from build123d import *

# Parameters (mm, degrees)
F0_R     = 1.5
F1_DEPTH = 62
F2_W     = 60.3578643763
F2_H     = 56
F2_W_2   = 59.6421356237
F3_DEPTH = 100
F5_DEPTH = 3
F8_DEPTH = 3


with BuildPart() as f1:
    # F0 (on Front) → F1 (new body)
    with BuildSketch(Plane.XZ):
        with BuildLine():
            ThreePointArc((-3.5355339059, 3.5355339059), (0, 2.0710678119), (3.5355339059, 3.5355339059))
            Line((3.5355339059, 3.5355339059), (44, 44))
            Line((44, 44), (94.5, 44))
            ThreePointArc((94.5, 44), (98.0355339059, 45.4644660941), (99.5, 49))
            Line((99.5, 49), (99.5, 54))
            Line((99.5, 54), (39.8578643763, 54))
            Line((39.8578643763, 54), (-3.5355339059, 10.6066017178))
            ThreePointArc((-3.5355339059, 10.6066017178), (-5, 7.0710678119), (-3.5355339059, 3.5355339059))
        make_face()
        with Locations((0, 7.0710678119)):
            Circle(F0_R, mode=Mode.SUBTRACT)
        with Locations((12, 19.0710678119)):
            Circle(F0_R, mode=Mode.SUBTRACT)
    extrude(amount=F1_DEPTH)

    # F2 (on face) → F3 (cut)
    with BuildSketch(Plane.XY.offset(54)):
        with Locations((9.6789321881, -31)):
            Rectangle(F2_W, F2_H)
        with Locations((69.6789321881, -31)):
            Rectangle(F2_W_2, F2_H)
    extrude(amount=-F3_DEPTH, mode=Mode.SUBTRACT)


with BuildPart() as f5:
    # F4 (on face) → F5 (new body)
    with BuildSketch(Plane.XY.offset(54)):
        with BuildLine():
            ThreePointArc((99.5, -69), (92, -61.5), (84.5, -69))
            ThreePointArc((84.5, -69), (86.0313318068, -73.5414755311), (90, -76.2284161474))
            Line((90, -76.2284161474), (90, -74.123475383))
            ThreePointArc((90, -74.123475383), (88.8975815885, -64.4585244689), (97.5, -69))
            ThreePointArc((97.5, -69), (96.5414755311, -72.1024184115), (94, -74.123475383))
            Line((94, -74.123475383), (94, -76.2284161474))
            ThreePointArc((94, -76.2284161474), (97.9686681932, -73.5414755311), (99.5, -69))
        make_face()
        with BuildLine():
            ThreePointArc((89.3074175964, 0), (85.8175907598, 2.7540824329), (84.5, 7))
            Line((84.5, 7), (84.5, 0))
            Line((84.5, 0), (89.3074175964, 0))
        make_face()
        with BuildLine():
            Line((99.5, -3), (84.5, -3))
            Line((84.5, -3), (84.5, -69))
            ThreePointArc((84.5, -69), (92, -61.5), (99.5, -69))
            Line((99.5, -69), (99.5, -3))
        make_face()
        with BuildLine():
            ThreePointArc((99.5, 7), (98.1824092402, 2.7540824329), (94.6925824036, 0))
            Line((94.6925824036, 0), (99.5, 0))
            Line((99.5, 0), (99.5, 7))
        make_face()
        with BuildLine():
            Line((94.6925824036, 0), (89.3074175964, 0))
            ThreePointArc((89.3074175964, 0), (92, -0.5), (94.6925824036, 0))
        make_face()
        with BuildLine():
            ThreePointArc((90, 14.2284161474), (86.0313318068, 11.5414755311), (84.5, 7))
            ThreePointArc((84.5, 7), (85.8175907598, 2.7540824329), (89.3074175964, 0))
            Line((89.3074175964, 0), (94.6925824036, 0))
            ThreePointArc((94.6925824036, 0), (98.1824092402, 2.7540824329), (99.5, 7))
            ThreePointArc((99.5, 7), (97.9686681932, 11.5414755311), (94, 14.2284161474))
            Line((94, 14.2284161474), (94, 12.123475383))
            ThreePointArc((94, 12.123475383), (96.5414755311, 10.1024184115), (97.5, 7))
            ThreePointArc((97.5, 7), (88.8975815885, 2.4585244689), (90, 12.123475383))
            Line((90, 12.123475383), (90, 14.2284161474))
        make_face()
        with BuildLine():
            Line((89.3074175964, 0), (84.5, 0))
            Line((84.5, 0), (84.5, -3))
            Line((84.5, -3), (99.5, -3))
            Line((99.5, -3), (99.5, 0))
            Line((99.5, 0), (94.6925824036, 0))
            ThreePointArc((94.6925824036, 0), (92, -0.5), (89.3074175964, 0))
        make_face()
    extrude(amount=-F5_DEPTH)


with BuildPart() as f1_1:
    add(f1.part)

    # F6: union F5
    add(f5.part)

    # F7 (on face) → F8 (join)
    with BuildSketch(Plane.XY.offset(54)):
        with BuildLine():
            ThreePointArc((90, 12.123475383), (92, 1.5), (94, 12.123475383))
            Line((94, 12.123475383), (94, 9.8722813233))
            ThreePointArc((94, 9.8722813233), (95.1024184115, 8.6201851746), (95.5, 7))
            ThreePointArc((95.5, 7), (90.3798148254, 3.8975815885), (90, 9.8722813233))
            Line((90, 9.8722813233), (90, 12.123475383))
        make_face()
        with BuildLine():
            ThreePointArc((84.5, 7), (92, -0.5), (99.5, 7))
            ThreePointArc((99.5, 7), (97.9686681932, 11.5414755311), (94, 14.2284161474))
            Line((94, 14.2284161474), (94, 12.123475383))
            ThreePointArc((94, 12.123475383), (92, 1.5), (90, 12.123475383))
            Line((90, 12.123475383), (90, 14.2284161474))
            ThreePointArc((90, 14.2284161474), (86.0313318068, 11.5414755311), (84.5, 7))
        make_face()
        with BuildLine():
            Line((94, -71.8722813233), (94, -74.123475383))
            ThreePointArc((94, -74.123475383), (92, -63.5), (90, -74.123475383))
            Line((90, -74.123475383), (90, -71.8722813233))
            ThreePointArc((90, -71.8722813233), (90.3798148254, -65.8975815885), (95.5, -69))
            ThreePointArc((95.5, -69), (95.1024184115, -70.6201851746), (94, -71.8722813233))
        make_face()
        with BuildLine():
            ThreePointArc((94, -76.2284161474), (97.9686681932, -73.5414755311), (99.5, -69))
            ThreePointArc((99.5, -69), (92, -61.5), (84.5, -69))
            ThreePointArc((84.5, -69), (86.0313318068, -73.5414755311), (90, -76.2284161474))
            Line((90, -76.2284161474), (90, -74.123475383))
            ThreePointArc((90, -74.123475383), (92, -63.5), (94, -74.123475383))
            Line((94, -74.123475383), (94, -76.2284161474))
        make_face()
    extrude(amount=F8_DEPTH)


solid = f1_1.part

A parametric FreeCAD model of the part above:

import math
import FreeCAD as App
import Part
import Sketcher
from FreeCAD import Vector
Q = App.Units.Quantity


def add_polygon(sketch, points):
    """Adds a closed chain of lines whose ends are joined by coincident constraints."""
    first, n = sketch.GeometryCount, len(points)
    for a, b in zip(points, points[1:] + points[:1]):
        sketch.addGeometry(Part.LineSegment(App.Vector(*a, 0), App.Vector(*b, 0)), False)
    for i in range(n):
        sketch.addConstraint(Sketcher.Constraint("Coincident", first + i, 2, first + (i + 1) % n, 1))

doc = App.newDocument("Part")
params = doc.addObject("Spreadsheet::Sheet", "Params")
for row, (alias, value) in enumerate([
    ("sketch1_diameter", "3 mm"),
    ("sketch1_radius", "5 mm"),
    ("sketch1_height", "5 mm"),
    ("sketch1_width", "50.5 mm"),
    ("pad1_length", "62 mm"),
    ("sketch2_width", "120 mm"),
    ("sketch2_height", "56 mm"),
    ("pocket1_length", "100 mm"),
    ("sketch3_radius", "7.5 mm"),
    ("sketch3_radius2", "5.5 mm"),
    ("sketch3_height", "76 mm"),
    ("pad2_length", "3 mm"),
    ("sketch4_radius", "3.5 mm"),
    ("sketch4_radius2", "7.5 mm"),
    ("pad3_length", "3 mm"),
], start=1):
    params.set(f"A{row}", alias)
    params.set(f"B{row}", "=" + value)
    params.setAlias(f"B{row}", alias)

body = doc.addObject("PartDesign::Body", "Body")
body.AllowCompound = True

# Sketch on XZ plane
sketch1 = body.newObject("Sketcher::SketchObject", "Sketch")
sketch1.AttachmentSupport = (doc.getObject("XZ_Plane"), [""])
sketch1.MapMode = "FlatFace"
sketch1.addGeometry([
    Part.ArcOfCircle(Part.Circle(Vector(0, 7.1, 0), Vector(0, 0, 1), 5), math.radians(-135), math.radians(-45)),  # 0
    Part.LineSegment(Vector(3.5, 3.5, 0), Vector(44, 44, 0)),  # 1
    Part.LineSegment(Vector(44, 44, 0), Vector(94.5, 44, 0)),  # 2
    Part.ArcOfCircle(Part.Circle(Vector(94.5, 49, 0), Vector(0, 0, 1), 5), math.radians(-90), math.radians(0)),  # 3
    Part.LineSegment(Vector(99.5, 49, 0), Vector(99.5, 54, 0)),  # 4
    Part.LineSegment(Vector(99.5, 54, 0), Vector(39.9, 54, 0)),  # 5
    Part.LineSegment(Vector(39.9, 54, 0), Vector(-3.5, 10.6, 0)),  # 6
    Part.ArcOfCircle(Part.Circle(Vector(0, 7.1, 0), Vector(0, 0, 1), 5), math.radians(135), math.radians(225)),  # 7
    Part.Circle(Vector(0, 7.1, 0), Vector(0, 0, 1), 1.5),  # 8
    Part.Circle(Vector(12, 19.1, 0), Vector(0, 0, 1), 1.5),  # 9
], False)
sketch1.addConstraint([
    Sketcher.Constraint("Tangent", 0, 2, 1, 1),
    Sketcher.Constraint("Coincident", 1, 2, 2, 1),
    Sketcher.Constraint("Tangent", 2, 2, 3, 1),
    Sketcher.Constraint("Tangent", 3, 2, 4, 1),
    Sketcher.Constraint("Coincident", 4, 2, 5, 1),
    Sketcher.Constraint("Coincident", 5, 2, 6, 1),
    Sketcher.Constraint("Tangent", 6, 2, 7, 1),
    Sketcher.Constraint("Tangent", 7, 2, 0, 1),
    Sketcher.Constraint("Horizontal", 2),
    Sketcher.Constraint("Vertical", 4),
    Sketcher.Constraint("Horizontal", 5),
    Sketcher.Constraint("Coincident", 8, 3, 0, 3),
    Sketcher.Constraint("Equal", 0, 3),
    Sketcher.Constraint("Equal", 3, 7),
    Sketcher.Constraint("Equal", 8, 9),
    Sketcher.Constraint("Symmetric", 0, 2, 7, 2, -2),
    Sketcher.Constraint("Parallel", 1, 6),
    Sketcher.Constraint("Diameter", 8, Q("3 mm")),
    Sketcher.Constraint("Radius", 0, Q("5 mm")),
    Sketcher.Constraint("DistanceY", 4, 1, 4, 2, Q("5 mm")),
    Sketcher.Constraint("Angle", 1, Q("45 deg")),
    Sketcher.Constraint("DistanceX", 2, 1, 2, 2, Q("50.5 mm")),
    Sketcher.Constraint("DistanceY", -1, 1, 3, 3, Q("49 mm")),
    Sketcher.Constraint("DistanceX", -1, 1, 9, 3, Q("12 mm")),
    Sketcher.Constraint("DistanceX", -1, 1, 1, 2, Q("44 mm")),
    Sketcher.Constraint("DistanceY", 0, 3, 9, 3, Q("12 mm")),
])
sketch1.setExpression("Constraints[17]", "Params.sketch1_diameter")
sketch1.setExpression("Constraints[18]", "Params.sketch1_radius")
sketch1.setExpression("Constraints[19]", "Params.sketch1_height")
sketch1.setExpression("Constraints[21]", "Params.sketch1_width")
pad1 = body.newObject("PartDesign::Pad", "Pad")
pad1.Profile = sketch1
pad1.setExpression("Length", "Params.pad1_length")

# Sketch on XY plane
sketch2 = body.newObject("Sketcher::SketchObject", "Sketch001")
sketch2.AttachmentSupport = (doc.getObject("XY_Plane"), [""])
sketch2.MapMode = "FlatFace"
sketch2.AttachmentOffset = App.Placement(Vector(0, 0, 54), App.Rotation())
add_polygon(sketch2, [(-20, -3), (-20, -59), (100, -59), (100, -3)])  # lines 0-3
sketch2.addConstraint([
    Sketcher.Constraint("Vertical", 0),
    Sketcher.Constraint("Horizontal", 1),
    Sketcher.Constraint("Vertical", 2),
    Sketcher.Constraint("Horizontal", 3),
    Sketcher.Constraint("DistanceX", 1, 1, 1, 2, Q("120 mm")),
    Sketcher.Constraint("DistanceY", 0, 2, 0, 1, Q("56 mm")),
    Sketcher.Constraint("DistanceY", 0, 2, -1, 1, Q("59 mm")),
    Sketcher.Constraint("DistanceX", 0, 2, -1, 1, Q("20.5 mm")),
])
sketch2.setExpression("Constraints[8]", "Params.sketch2_width")
sketch2.setExpression("Constraints[9]", "Params.sketch2_height")
pocket1 = body.newObject("PartDesign::Pocket", "Pocket")
pocket1.Profile = sketch2
pocket1.setExpression("Length", "Params.pocket1_length")
body2 = doc.addObject("PartDesign::Body", "Body001")

# Sketch on XY plane
sketch3 = body2.newObject("Sketcher::SketchObject", "Sketch002")
sketch3.AttachmentSupport = (doc.getObject("XY_Plane001"), [""])
sketch3.MapMode = "FlatFace"
sketch3.AttachmentOffset = App.Placement(Vector(0, 0, 54), App.Rotation())
sketch3.addGeometry([
    Part.ArcOfCircle(Part.Circle(Vector(92, -69, 0), Vector(0, 0, 1), 7.5), math.radians(180), math.radians(255)),  # 0
    Part.LineSegment(Vector(90, -76.2, 0), Vector(90, -74.1, 0)),  # 1
    Part.ArcOfCircle(Part.Circle(Vector(92, -69, 0), Vector(0, 0, 1), 5.5), math.radians(0), math.radians(249)),  # 2
    Part.ArcOfCircle(Part.Circle(Vector(92, -69, 0), Vector(0, 0, 1), 5.5), math.radians(-69), math.radians(0)),  # 3
    Part.LineSegment(Vector(94, -74.1, 0), Vector(94, -76.2, 0)),  # 4
    Part.ArcOfCircle(Part.Circle(Vector(92, -69, 0), Vector(0, 0, 1), 7.5), math.radians(-75), math.radians(0)),  # 5
    Part.LineSegment(Vector(99.5, -69, 0), Vector(99.5, 7, 0)),  # 6
    Part.ArcOfCircle(Part.Circle(Vector(92, 7, 0), Vector(0, 0, 1), 7.5), math.radians(0), math.radians(75)),  # 7
    Part.LineSegment(Vector(94, 14.2, 0), Vector(94, 12.1, 0)),  # 8
    Part.ArcOfCircle(Part.Circle(Vector(92, 7, 0), Vector(0, 0, 1), 5.5), math.radians(0), math.radians(69)),  # 9
    Part.ArcOfCircle(Part.Circle(Vector(92, 7, 0), Vector(0, 0, 1), 5.5), math.radians(111), math.radians(360)),  # 10
    Part.LineSegment(Vector(90, 12.1, 0), Vector(90, 14.2, 0)),  # 11
    Part.ArcOfCircle(Part.Circle(Vector(92, 7, 0), Vector(0, 0, 1), 7.5), math.radians(105), math.radians(180)),  # 12
    Part.LineSegment(Vector(84.5, 7, 0), Vector(84.5, -69, 0)),  # 13
], False)
sketch3.addConstraint([
    Sketcher.Constraint("Coincident", 0, 2, 1, 1),
    Sketcher.Constraint("Coincident", 1, 2, 2, 2),
    Sketcher.Constraint("Tangent", 2, 1, 3, 2),
    Sketcher.Constraint("Coincident", 3, 1, 4, 1),
    Sketcher.Constraint("Coincident", 4, 2, 5, 1),
    Sketcher.Constraint("Tangent", 5, 2, 6, 1),
    Sketcher.Constraint("Tangent", 6, 2, 7, 1),
    Sketcher.Constraint("Coincident", 7, 2, 8, 1),
    Sketcher.Constraint("Coincident", 8, 2, 9, 2),
    Sketcher.Constraint("Tangent", 9, 1, 10, 2),
    Sketcher.Constraint("Coincident", 10, 1, 11, 1),
    Sketcher.Constraint("Coincident", 11, 2, 12, 1),
    Sketcher.Constraint("Tangent", 12, 2, 13, 1),
    Sketcher.Constraint("Tangent", 13, 2, 0, 1),
    Sketcher.Constraint("Vertical", 1),
    Sketcher.Constraint("Vertical", 4),
    Sketcher.Constraint("Vertical", 6),
    Sketcher.Constraint("Vertical", 8),
    Sketcher.Constraint("Vertical", 11),
    Sketcher.Constraint("Vertical", 13),
    Sketcher.Constraint("Coincident", 2, 3, 0, 3),
    Sketcher.Constraint("Coincident", 5, 3, 0, 3),
    Sketcher.Constraint("Coincident", 9, 3, 7, 3),
    Sketcher.Constraint("Coincident", 12, 3, 7, 3),
    Sketcher.Constraint("Equal", 2, 3),
    Sketcher.Constraint("Equal", 0, 5),
    Sketcher.Constraint("Equal", 5, 7),
    Sketcher.Constraint("Equal", 3, 9),
    Sketcher.Constraint("Equal", 9, 10),
    Sketcher.Constraint("Horizontal", 5, 3, 2, 1),
    Sketcher.Constraint("Horizontal", 1, 2, 3, 1),
    Sketcher.Constraint("Horizontal", 6, 2, 9, 1),
    Sketcher.Constraint("Horizontal", 8, 2, 10, 1),
    Sketcher.Constraint("Vertical", 4, 2, 7, 2),
    Sketcher.Constraint("Radius", 0, Q("7.5 mm")),
    Sketcher.Constraint("Radius", 2, Q("5.5 mm")),
    Sketcher.Constraint("DistanceY", 6, 1, 6, 2, Q("76 mm")),
    Sketcher.Constraint("DistanceX", -1, 1, 0, 3, Q("92 mm")),
    Sketcher.Constraint("DistanceY", 0, 3, -1, 1, Q("69 mm")),
    Sketcher.Constraint("DistanceX", -1, 1, 0, 2, Q("90 mm")),
])
sketch3.setExpression("Constraints[34]", "Params.sketch3_radius")
sketch3.setExpression("Constraints[35]", "Params.sketch3_radius2")
sketch3.setExpression("Constraints[36]", "Params.sketch3_height")
pad2 = body2.newObject("PartDesign::Pad", "Pad001")
pad2.Profile = sketch3
pad2.setExpression("Length", "Params.pad2_length")
pad2.Reversed = True
doc.recompute()

boolean = body.newObject("PartDesign::Boolean", "Boolean")
boolean.Type = "Fuse"
boolean.addObjects([body2])

# Sketch on XY plane
sketch4 = body.newObject("Sketcher::SketchObject", "Sketch003")
sketch4.AttachmentSupport = (doc.getObject("XY_Plane"), [""])
sketch4.MapMode = "FlatFace"
sketch4.AttachmentOffset = App.Placement(Vector(0, 0, 54), App.Rotation())
sketch4.addGeometry([
    Part.ArcOfCircle(Part.Circle(Vector(92, 7, 0), Vector(0, 0, 1), 3.5), math.radians(0), math.radians(55)),  # 0
    Part.ArcOfCircle(Part.Circle(Vector(92, 7, 0), Vector(0, 0, 1), 3.5), math.radians(125), math.radians(360)),  # 1
    Part.LineSegment(Vector(90, 9.9, 0), Vector(90, 14.2, 0)),  # 2
    Part.ArcOfCircle(Part.Circle(Vector(92, 7, 0), Vector(0, 0, 1), 7.5), math.radians(105), math.radians(180)),  # 3
    Part.ArcOfCircle(Part.Circle(Vector(92, 7, 0), Vector(0, 0, 1), 7.5), math.radians(180), math.radians(360)),  # 4
    Part.ArcOfCircle(Part.Circle(Vector(92, 7, 0), Vector(0, 0, 1), 7.5), math.radians(0), math.radians(75)),  # 5
    Part.LineSegment(Vector(94, 14.2, 0), Vector(94, 9.9, 0)),  # 6
    Part.LineSegment(Vector(94, -71.9, 0), Vector(94, -76.2, 0)),  # 7
    Part.ArcOfCircle(Part.Circle(Vector(92, -69, 0), Vector(0, 0, 1), 7.5), math.radians(-75), math.radians(0)),  # 8
    Part.ArcOfCircle(Part.Circle(Vector(92, -69, 0), Vector(0, 0, 1), 7.5), math.radians(0), math.radians(180)),  # 9
    Part.ArcOfCircle(Part.Circle(Vector(92, -69, 0), Vector(0, 0, 1), 7.5), math.radians(180), math.radians(255)),  # 10
    Part.LineSegment(Vector(90, -76.2, 0), Vector(90, -71.9, 0)),  # 11
    Part.ArcOfCircle(Part.Circle(Vector(92, -69, 0), Vector(0, 0, 1), 3.5), math.radians(0), math.radians(235)),  # 12
    Part.ArcOfCircle(Part.Circle(Vector(92, -69, 0), Vector(0, 0, 1), 3.5), math.radians(-55), math.radians(0)),  # 13
], False)
sketch4.addConstraint([
    Sketcher.Constraint("Tangent", 0, 1, 1, 2),
    Sketcher.Constraint("Coincident", 1, 1, 2, 1),
    Sketcher.Constraint("Coincident", 2, 2, 3, 1),
    Sketcher.Constraint("Tangent", 3, 2, 4, 1),
    Sketcher.Constraint("Tangent", 4, 2, 5, 1),
    Sketcher.Constraint("Coincident", 5, 2, 6, 1),
    Sketcher.Constraint("Coincident", 6, 2, 0, 2),
    Sketcher.Constraint("Coincident", 7, 2, 8, 1),
    Sketcher.Constraint("Tangent", 8, 2, 9, 1),
    Sketcher.Constraint("Tangent", 9, 2, 10, 1),
    Sketcher.Constraint("Coincident", 10, 2, 11, 1),
    Sketcher.Constraint("Coincident", 11, 2, 12, 2),
    Sketcher.Constraint("Tangent", 12, 1, 13, 2),
    Sketcher.Constraint("Coincident", 13, 1, 7, 1),
    Sketcher.Constraint("Vertical", 2),
    Sketcher.Constraint("Vertical", 6),
    Sketcher.Constraint("Vertical", 7),
    Sketcher.Constraint("Vertical", 11),
    Sketcher.Constraint("Coincident", 3, 3, 0, 3),
    Sketcher.Constraint("Coincident", 12, 3, 8, 3),
    Sketcher.Constraint("Equal", 0, 1),
    Sketcher.Constraint("Equal", 3, 4),
    Sketcher.Constraint("Equal", 4, 5),
    Sketcher.Constraint("Equal", 5, 8),
    Sketcher.Constraint("Equal", 8, 9),
    Sketcher.Constraint("Equal", 9, 10),
    Sketcher.Constraint("Equal", 1, 12),
    Sketcher.Constraint("Equal", 12, 13),
    Sketcher.Constraint("Horizontal", 5, 3, 0, 1),
    Sketcher.Constraint("Horizontal", 0, 1, 3, 2),
    Sketcher.Constraint("Horizontal", 3, 2, 4, 2),
    Sketcher.Constraint("Horizontal", 2, 2, 5, 2),
    Sketcher.Constraint("Horizontal", 13, 3, 8, 2),
    Sketcher.Constraint("Horizontal", 8, 2, 9, 2),
    Sketcher.Constraint("Horizontal", 7, 2, 10, 2),
    Sketcher.Constraint("Horizontal", 9, 2, 12, 1),
    Sketcher.Constraint("Vertical", 5, 3, 8, 3),
    Sketcher.Constraint("Vertical", 6, 2, 7, 2),
    Sketcher.Constraint("Radius", 0, Q("3.5 mm")),
    Sketcher.Constraint("Radius", 3, Q("7.5 mm")),
    Sketcher.Constraint("DistanceX", -1, 1, 0, 3, Q("92 mm")),
    Sketcher.Constraint("DistanceY", -1, 1, 0, 3, Q("7 mm")),
    Sketcher.Constraint("DistanceY", 8, 3, -1, 1, Q("69 mm")),
    Sketcher.Constraint("DistanceX", -1, 1, 1, 1, Q("90 mm")),
])
sketch4.setExpression("Constraints[38]", "Params.sketch4_radius")
sketch4.setExpression("Constraints[39]", "Params.sketch4_radius2")
pad3 = body.newObject("PartDesign::Pad", "Pad002")
pad3.Profile = sketch4
pad3.setExpression("Length", "Params.pad3_length")

doc.recompute()
